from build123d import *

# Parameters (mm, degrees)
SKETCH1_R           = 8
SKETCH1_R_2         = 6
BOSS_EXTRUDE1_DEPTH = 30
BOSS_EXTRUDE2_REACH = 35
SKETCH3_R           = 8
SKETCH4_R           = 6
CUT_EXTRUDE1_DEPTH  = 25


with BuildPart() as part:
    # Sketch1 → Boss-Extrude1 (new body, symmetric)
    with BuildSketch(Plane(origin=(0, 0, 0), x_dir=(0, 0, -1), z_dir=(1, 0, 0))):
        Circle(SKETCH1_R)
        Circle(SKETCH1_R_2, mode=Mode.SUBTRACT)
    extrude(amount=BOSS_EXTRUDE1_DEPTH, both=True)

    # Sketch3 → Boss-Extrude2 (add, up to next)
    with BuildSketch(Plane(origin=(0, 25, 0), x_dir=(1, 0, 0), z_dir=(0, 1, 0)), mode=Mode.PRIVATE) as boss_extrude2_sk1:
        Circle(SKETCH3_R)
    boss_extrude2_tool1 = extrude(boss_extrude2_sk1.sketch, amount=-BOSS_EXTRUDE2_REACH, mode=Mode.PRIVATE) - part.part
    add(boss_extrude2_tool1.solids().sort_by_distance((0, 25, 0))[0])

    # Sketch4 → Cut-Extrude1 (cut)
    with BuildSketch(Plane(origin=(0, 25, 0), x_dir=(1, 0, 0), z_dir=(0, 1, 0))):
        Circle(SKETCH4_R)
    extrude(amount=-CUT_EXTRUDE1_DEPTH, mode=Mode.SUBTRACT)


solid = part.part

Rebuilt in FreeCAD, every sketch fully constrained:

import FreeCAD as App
import Part
import Sketcher

doc = App.newDocument("Part")
body = doc.addObject("PartDesign::Body", "Body")

# Sketch on YZ plane
sketch1 = body.newObject("Sketcher::SketchObject", "Sketch")
sketch1.AttachmentSupport = (doc.getObject("YZ_Plane"), [""])
sketch1.MapMode = "FlatFace"
sketch1.addGeometry([
    Part.Circle(App.Vector(0, 0, 0), App.Vector(0, 0, 1), 8),
    Part.Circle(App.Vector(0, 0, 0), App.Vector(0, 0, 1), 6),
], False)
sketch1.addConstraint([
    Sketcher.Constraint("Coincident", 0, 3, -1, 1),
    Sketcher.Constraint("Coincident", 1, 3, -1, 1),
    Sketcher.Constraint("Diameter", 0, 16.0),
    Sketcher.Constraint("Diameter", 1, 12.0),
])
pad1 = body.newObject("PartDesign::Pad", "Pad")
pad1.Profile = sketch1
pad1.Length = 60
pad1.Midplane = True

# Sketch on XZ plane
sketch2 = body.newObject("Sketcher::SketchObject", "Sketch001")
sketch2.AttachmentSupport = (doc.getObject("XZ_Plane"), [""])
sketch2.MapMode = "FlatFace"
sketch2.AttachmentOffset = App.Placement(App.Vector(0, 0, -25), App.Rotation())
sketch2.addGeometry(Part.Circle(App.Vector(0, 0, 0), App.Vector(0, 0, 1), 8), False)
sketch2.addConstraint([
    Sketcher.Constraint("Coincident", 0, 3, -1, 1),
    Sketcher.Constraint("Diameter", 0, 16.0),
])
pad2 = body.newObject("PartDesign::Pad", "Pad001")
pad2.Profile = sketch2
pad2.Type = "UpToFirst"

# Sketch on XZ plane
sketch3 = body.newObject("Sketcher::SketchObject", "Sketch002")
sketch3.AttachmentSupport = (doc.getObject("XZ_Plane"), [""])
sketch3.MapMode = "FlatFace"
sketch3.AttachmentOffset = App.Placement(App.Vector(0, 0, -25), App.Rotation())
sketch3.addGeometry(Part.Circle(App.Vector(0, 0, 0), App.Vector(0, 0, 1), 6), False)
sketch3.addConstraint([
    Sketcher.Constraint("Coincident", 0, 3, -1, 1),
    Sketcher.Constraint("Diameter", 0, 12.0),
])
pocket1 = body.newObject("PartDesign::Pocket", "Pocket")
pocket1.Profile = sketch3
pocket1.Length = 25
pocket1.Reversed = True

doc.recompute()
